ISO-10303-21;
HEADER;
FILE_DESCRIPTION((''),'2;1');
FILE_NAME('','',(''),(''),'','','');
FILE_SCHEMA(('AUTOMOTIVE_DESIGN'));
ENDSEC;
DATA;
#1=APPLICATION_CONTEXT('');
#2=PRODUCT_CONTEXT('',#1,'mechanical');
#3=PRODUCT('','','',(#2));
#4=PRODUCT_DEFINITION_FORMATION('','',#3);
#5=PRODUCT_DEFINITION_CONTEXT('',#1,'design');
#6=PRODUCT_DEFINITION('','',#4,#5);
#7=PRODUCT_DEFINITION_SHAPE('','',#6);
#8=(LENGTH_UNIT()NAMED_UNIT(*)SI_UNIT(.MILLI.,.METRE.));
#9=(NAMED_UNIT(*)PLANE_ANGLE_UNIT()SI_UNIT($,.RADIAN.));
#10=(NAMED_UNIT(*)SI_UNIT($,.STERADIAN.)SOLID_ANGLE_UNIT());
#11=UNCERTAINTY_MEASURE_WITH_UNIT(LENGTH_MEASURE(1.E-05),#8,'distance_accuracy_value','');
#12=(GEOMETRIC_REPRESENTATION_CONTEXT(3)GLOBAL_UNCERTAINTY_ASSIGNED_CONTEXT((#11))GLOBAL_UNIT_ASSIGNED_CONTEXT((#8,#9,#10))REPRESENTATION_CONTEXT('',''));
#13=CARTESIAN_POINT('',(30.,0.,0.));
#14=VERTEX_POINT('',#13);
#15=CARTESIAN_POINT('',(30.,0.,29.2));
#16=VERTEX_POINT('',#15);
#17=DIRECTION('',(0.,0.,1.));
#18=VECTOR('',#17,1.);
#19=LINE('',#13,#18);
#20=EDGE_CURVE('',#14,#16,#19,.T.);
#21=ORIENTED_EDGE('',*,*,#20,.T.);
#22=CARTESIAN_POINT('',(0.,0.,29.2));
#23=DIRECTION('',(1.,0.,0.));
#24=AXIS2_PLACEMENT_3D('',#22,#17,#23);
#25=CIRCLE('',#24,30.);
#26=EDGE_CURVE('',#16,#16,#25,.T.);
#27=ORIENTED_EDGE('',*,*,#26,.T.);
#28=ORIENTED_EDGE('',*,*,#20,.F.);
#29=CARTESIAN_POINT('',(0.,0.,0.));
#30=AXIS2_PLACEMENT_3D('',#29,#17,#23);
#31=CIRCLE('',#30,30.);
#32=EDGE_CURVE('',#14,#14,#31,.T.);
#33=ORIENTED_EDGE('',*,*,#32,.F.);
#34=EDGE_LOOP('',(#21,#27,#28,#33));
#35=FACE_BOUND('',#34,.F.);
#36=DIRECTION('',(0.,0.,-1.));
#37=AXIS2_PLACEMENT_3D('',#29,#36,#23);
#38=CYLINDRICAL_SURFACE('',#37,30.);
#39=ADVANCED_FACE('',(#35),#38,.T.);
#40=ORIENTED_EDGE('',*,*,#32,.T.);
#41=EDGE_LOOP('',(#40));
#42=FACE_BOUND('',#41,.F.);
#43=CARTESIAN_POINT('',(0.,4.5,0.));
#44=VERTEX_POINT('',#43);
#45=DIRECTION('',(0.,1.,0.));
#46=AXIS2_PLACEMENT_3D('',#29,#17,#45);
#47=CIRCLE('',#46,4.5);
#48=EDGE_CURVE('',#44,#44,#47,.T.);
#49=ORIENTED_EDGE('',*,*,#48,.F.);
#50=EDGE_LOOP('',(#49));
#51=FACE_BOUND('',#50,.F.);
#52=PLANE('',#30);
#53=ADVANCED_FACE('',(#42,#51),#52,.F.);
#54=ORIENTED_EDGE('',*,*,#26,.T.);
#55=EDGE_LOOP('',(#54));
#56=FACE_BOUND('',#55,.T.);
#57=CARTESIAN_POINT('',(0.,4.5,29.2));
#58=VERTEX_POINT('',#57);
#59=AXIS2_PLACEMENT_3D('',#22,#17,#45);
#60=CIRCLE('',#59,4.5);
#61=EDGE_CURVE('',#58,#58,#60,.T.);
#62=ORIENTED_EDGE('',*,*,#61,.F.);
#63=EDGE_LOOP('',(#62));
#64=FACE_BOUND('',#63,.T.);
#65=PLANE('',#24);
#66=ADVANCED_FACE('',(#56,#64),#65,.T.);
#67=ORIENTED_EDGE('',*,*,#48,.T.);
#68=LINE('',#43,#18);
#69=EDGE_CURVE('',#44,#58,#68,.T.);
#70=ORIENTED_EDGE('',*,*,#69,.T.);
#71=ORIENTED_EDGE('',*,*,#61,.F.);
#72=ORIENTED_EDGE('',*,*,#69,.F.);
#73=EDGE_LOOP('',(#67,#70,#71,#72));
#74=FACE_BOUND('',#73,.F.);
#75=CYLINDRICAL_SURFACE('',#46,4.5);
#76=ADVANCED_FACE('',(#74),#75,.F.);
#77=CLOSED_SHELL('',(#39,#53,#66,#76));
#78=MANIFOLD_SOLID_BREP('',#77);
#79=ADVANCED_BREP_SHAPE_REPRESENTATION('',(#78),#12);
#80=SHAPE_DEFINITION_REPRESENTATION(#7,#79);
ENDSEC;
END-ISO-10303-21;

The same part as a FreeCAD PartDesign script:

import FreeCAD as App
import Part
import Sketcher

doc = App.newDocument("Part")
body = doc.addObject("PartDesign::Body", "Body")

sketch1 = doc.addObject("Sketcher::SketchObject", "Sketch")
body.addObject(sketch1)
sketch1.AttachmentSupport = (doc.XY_Plane, [""])
sketch1.MapMode = "FlatFace"
sketch1.addGeometry(Part.Circle(App.Vector(0, 0, 0), App.Vector(0, 0, 1), 30), False)
sketch1.addConstraint([
    Sketcher.Constraint("Coincident", 0, 3, -1, 1),
    Sketcher.Constraint("Diameter", 0, 60.0),
])
pad1 = doc.addObject("PartDesign::Pad", "Pad")
body.addObject(pad1)
pad1.Profile = sketch1
pad1.Length = 29.2

sketch2 = doc.addObject("Sketcher::SketchObject", "Sketch001")
body.addObject(sketch2)
sketch2.AttachmentSupport = (doc.XY_Plane, [""])
sketch2.MapMode = "FlatFace"
sketch2.addGeometry(Part.Circle(App.Vector(0, 0, 0), App.Vector(0, 0, 1), 4.5), False)
sketch2.addConstraint([
    Sketcher.Constraint("Coincident", 0, 3, -1, 1),
    Sketcher.Constraint("Diameter", 0, 9.0),
])
doc.recompute()
hole = doc.addObject("PartDesign::Hole", "Hole")
body.addObject(hole)
hole.Profile = sketch2
hole.ThreadType = "None"
hole.Diameter = 9
hole.DepthType = "ThroughAll"
hole.Reversed = True

doc.recompute()
